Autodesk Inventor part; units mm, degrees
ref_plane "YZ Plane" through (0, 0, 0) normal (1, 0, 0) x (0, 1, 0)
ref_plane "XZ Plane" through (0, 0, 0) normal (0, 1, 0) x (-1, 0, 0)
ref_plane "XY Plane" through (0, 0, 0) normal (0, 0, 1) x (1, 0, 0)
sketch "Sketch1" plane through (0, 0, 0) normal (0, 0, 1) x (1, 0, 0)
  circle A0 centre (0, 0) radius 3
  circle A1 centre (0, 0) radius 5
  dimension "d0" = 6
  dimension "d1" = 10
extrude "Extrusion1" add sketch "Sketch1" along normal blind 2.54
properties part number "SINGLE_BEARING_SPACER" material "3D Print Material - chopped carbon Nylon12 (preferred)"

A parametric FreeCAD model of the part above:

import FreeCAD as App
import Part
import Sketcher

V = App.Vector

doc = App.newDocument("Part")
body = doc.addObject("PartDesign::Body", "Body")

# Sketch on XY plane
sketch1 = body.newObject("Sketcher::SketchObject", "Sketch")
sketch1.AttachmentSupport = (doc.getObject("XY_Plane"), [""])
sketch1.MapMode = "FlatFace"
sketch1.addGeometry([
    Part.Circle(V(0, 0, 0), V(0, 0, 1), 5),
    Part.Circle(V(0, 0, 0), V(0, 0, 1), 3),
], False)
sketch1.addConstraint([
    Sketcher.Constraint("Coincident", 0, 3, -1, 1),
    Sketcher.Constraint("Coincident", 1, 3, -1, 1),
    Sketcher.Constraint("Diameter", 0, 10.0),
    Sketcher.Constraint("Diameter", 1, 6.0),
])
pad1 = body.newObject("PartDesign::Pad", "Pad")
pad1.Profile = sketch1
pad1.Length = 2.54

doc.recompute()
